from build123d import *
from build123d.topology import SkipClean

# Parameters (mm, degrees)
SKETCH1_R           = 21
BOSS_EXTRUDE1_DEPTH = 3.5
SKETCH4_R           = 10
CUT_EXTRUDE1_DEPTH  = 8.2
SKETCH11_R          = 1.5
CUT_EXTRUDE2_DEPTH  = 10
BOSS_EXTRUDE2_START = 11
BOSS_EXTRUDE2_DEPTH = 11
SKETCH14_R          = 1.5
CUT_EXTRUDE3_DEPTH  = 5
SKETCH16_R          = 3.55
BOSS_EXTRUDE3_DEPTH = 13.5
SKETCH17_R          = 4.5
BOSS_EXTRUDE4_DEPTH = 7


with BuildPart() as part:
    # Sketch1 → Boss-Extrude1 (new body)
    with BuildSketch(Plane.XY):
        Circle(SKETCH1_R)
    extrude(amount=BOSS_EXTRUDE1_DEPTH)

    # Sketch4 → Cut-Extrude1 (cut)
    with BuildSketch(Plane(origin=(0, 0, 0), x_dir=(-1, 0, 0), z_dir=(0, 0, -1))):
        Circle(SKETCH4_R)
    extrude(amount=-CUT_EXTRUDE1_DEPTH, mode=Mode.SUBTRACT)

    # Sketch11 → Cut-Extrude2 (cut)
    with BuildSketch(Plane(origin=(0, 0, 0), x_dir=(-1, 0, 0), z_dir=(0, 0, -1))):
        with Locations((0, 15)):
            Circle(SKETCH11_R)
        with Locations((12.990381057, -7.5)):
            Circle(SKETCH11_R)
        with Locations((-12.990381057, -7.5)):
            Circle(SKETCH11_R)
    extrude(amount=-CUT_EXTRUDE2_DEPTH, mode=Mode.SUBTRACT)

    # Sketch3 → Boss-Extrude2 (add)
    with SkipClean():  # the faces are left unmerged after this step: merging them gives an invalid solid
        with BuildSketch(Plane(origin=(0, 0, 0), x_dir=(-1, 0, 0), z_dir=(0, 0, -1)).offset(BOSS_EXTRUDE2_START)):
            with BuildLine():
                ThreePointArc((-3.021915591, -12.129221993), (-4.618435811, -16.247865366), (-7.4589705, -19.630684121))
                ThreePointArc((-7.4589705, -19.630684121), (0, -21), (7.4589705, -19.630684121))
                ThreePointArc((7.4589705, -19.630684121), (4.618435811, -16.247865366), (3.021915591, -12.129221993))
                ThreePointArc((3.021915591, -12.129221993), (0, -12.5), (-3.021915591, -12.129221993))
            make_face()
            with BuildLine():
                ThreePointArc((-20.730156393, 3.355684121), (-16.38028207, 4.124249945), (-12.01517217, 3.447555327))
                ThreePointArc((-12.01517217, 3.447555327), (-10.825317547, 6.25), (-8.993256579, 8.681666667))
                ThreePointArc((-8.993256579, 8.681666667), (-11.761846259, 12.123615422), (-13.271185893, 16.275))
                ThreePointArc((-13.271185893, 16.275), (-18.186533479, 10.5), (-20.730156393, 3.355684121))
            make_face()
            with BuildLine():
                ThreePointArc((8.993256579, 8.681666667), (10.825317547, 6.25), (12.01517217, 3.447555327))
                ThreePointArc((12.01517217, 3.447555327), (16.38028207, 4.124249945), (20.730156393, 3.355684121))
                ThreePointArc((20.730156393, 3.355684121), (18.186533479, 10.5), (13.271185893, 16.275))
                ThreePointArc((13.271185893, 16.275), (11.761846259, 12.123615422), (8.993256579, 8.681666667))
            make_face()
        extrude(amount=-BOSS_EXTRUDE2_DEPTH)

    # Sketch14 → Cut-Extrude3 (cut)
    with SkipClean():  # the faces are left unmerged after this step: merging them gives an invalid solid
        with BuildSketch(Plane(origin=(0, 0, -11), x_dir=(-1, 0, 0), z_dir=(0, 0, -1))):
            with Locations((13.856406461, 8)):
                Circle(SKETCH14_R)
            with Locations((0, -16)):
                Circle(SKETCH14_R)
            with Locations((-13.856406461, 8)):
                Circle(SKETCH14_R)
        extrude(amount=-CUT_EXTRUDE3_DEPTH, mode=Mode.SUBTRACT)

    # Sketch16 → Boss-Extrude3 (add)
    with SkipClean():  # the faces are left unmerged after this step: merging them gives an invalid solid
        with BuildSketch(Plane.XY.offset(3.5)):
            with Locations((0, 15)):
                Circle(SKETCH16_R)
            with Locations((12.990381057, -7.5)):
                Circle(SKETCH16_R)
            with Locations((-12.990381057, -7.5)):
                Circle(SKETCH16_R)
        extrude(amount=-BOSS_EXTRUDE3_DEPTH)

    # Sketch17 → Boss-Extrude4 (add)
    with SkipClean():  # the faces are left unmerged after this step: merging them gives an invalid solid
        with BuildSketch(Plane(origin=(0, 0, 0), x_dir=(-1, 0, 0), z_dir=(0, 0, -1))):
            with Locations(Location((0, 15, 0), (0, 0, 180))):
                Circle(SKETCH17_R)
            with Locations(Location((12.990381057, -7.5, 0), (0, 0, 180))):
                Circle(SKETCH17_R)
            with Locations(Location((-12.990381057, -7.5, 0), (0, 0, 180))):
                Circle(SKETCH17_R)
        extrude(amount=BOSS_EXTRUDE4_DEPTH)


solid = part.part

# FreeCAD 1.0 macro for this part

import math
import FreeCAD as App
import Part
import Sketcher
from FreeCAD import Vector
Q = App.Units.Quantity

doc = App.newDocument("Part")
body = doc.addObject("PartDesign::Body", "Body")

sketch1 = body.newObject("Sketcher::SketchObject", "Sketch")
sketch1.AttachmentSupport = (doc.getObject("XY_Plane"), [""])
sketch1.MapMode = "FlatFace"
sketch1.addGeometry(Part.Circle(Vector(0, 0, 0), Vector(0, 0, 1), 21), False)
sketch1.addConstraint(Sketcher.Constraint("Coincident", 0, 3, -1, 1))
sketch1.addConstraint(Sketcher.Constraint("Diameter", 0, Q("42 mm")))
pad1 = body.newObject("PartDesign::Pad", "Pad")
pad1.Profile = sketch1
pad1.Length = 3.5

sketch2 = body.newObject("Sketcher::SketchObject", "Sketch001")
sketch2.AttachmentSupport = (doc.getObject("XY_Plane"), [""])
sketch2.MapMode = "FlatFace"
sketch2.addGeometry(Part.Circle(Vector(0, 0, 0), Vector(0, 0, 1), 10), False)
sketch2.addConstraint(Sketcher.Constraint("Coincident", 0, 3, -1, 1))
sketch2.addConstraint(Sketcher.Constraint("Diameter", 0, Q("20 mm")))
pocket1 = body.newObject("PartDesign::Pocket", "Pocket")
pocket1.Profile = sketch2
pocket1.Length = 8.2
pocket1.Reversed = True

sketch3 = body.newObject("Sketcher::SketchObject", "Sketch002")
sketch3.AttachmentSupport = (doc.getObject("XY_Plane"), [""])
sketch3.MapMode = "FlatFace"
sketch3.addGeometry(Part.Circle(Vector(0, 15, 0), Vector(0, 0, 1), 1.5), False)
sketch3.addGeometry(Part.Circle(Vector(-13, -7.5, 0), Vector(0, 0, 1), 1.5), False)
sketch3.addGeometry(Part.Circle(Vector(13, -7.5, 0), Vector(0, 0, 1), 1.5), False)
sketch3.addConstraint(Sketcher.Constraint("Equal", 0, 1))
sketch3.addConstraint(Sketcher.Constraint("Equal", 1, 2))
sketch3.addConstraint(Sketcher.Constraint("Symmetric", 1, 3, 2, 3, -2))
sketch3.addConstraint(Sketcher.Constraint("PointOnObject", 0, 3, -2))
sketch3.addConstraint(Sketcher.Constraint("Diameter", 0, Q("3 mm")))
sketch3.addConstraint(Sketcher.Constraint("DistanceY", -1, 1, 0, 3, Q("15 mm")))
sketch3.addConstraint(Sketcher.Constraint("DistanceY", 1, 3, -1, 1, Q("7.5 mm")))
sketch3.addConstraint(Sketcher.Constraint("DistanceX", 1, 3, -1, 1, Q("12.990381 mm")))
pocket2 = body.newObject("PartDesign::Pocket", "Pocket001")
pocket2.Profile = sketch3
pocket2.Length = 10
pocket2.Reversed = True

sketch4 = body.newObject("Sketcher::SketchObject", "Sketch003")
sketch4.AttachmentSupport = (doc.getObject("XY_Plane"), [""])
sketch4.MapMode = "FlatFace"
sketch4.AttachmentOffset = App.Placement(Vector(0, 0, -11), App.Rotation())
sketch4.addGeometry(Part.ArcOfCircle(Part.Circle(Vector(16, -9, 0), Vector(0, 0, 1), 13), math.radians(-168), math.radians(-131)), False)
sketch4.addGeometry(Part.ArcOfCircle(Part.Circle(Vector(0, 0, 0), Vector(0, 0, 1), 21), math.radians(-111), math.radians(-69)), False)
sketch4.addGeometry(Part.ArcOfCircle(Part.Circle(Vector(-16, -9, 0), Vector(0, 0, 1), 13), math.radians(-49), math.radians(-12)), False)
sketch4.addGeometry(Part.ArcOfCircle(Part.Circle(Vector(0, 0, 0), Vector(0, 0, 1), 12), math.radians(-104), math.radians(-76)), False)
sketch4.addGeometry(Part.ArcOfCircle(Part.Circle(Vector(16, -9, 0), Vector(0, 0, 1), 13), math.radians(71), math.radians(108)), False)
sketch4.addGeometry(Part.ArcOfCircle(Part.Circle(Vector(0, 0, 0), Vector(0, 0, 1), 13), math.radians(16), math.radians(44)), False)
sketch4.addGeometry(Part.ArcOfCircle(Part.Circle(Vector(0, 19, 0), Vector(0, 0, 1), 14), math.radians(-48), math.radians(-11)), False)
sketch4.addGeometry(Part.ArcOfCircle(Part.Circle(Vector(0, 0, 0), Vector(0, 0, 1), 21), math.radians(9), math.radians(51)), False)
sketch4.addGeometry(Part.ArcOfCircle(Part.Circle(Vector(0, 0, 0), Vector(0, 0, 1), 13), math.radians(136), math.radians(164)), False)
sketch4.addGeometry(Part.ArcOfCircle(Part.Circle(Vector(-16, -9, 0), Vector(0, 0, 1), 13), math.radians(72), math.radians(109)), False)
sketch4.addGeometry(Part.ArcOfCircle(Part.Circle(Vector(0, 0, 0), Vector(0, 0, 1), 21), math.radians(129), math.radians(171)), False)
sketch4.addGeometry(Part.ArcOfCircle(Part.Circle(Vector(0, 19, 0), Vector(0, 0, 1), 14), math.radians(-169), math.radians(-132)), False)
sketch4.addConstraint(Sketcher.Constraint("Coincident", 0, 2, 1, 2))
sketch4.addConstraint(Sketcher.Constraint("Coincident", 1, 1, 2, 1))
sketch4.addConstraint(Sketcher.Constraint("Coincident", 2, 2, 3, 1))
sketch4.addConstraint(Sketcher.Constraint("Coincident", 3, 2, 0, 1))
sketch4.addConstraint(Sketcher.Constraint("Coincident", 4, 2, 5, 1))
sketch4.addConstraint(Sketcher.Constraint("Coincident", 5, 2, 6, 1))
sketch4.addConstraint(Sketcher.Constraint("Coincident", 6, 2, 7, 2))
sketch4.addConstraint(Sketcher.Constraint("Coincident", 7, 1, 4, 1))
sketch4.addConstraint(Sketcher.Constraint("Coincident", 8, 2, 9, 1))
sketch4.addConstraint(Sketcher.Constraint("Coincident", 9, 2, 10, 2))
sketch4.addConstraint(Sketcher.Constraint("Coincident", 10, 1, 11, 1))
sketch4.addConstraint(Sketcher.Constraint("Coincident", 11, 2, 8, 1))
sketch4.addConstraint(Sketcher.Constraint("Coincident", 1, 3, -1, 1))
sketch4.addConstraint(Sketcher.Constraint("Coincident", 3, 3, -1, 1))
sketch4.addConstraint(Sketcher.Constraint("Coincident", 5, 3, -1, 1))
sketch4.addConstraint(Sketcher.Constraint("Coincident", 7, 3, -1, 1))
sketch4.addConstraint(Sketcher.Constraint("Coincident", 8, 3, -1, 1))
sketch4.addConstraint(Sketcher.Constraint("Coincident", 10, 3, -1, 1))
sketch4.addConstraint(Sketcher.Constraint("Coincident", 4, 3, 0, 3))
sketch4.addConstraint(Sketcher.Constraint("Coincident", 9, 3, 2, 3))
sketch4.addConstraint(Sketcher.Constraint("Coincident", 11, 3, 6, 3))
sketch4.addConstraint(Sketcher.Constraint("Equal", 0, 2))
sketch4.addConstraint(Sketcher.Constraint("Equal", 2, 4))
sketch4.addConstraint(Sketcher.Constraint("Equal", 3, 5))
sketch4.addConstraint(Sketcher.Constraint("Equal", 4, 6))
sketch4.addConstraint(Sketcher.Constraint("Equal", 1, 7))
sketch4.addConstraint(Sketcher.Constraint("Equal", 5, 8))
sketch4.addConstraint(Sketcher.Constraint("Equal", 6, 9))
sketch4.addConstraint(Sketcher.Constraint("Equal", 7, 10))
sketch4.addConstraint(Sketcher.Constraint("Equal", 9, 11))
sketch4.addConstraint(Sketcher.Constraint("Symmetric", 0, 3, 2, 3, -2))
sketch4.addConstraint(Sketcher.Constraint("PointOnObject", 6, 3, -2))
sketch4.addConstraint(Sketcher.Constraint("Radius", 1, Q("21 mm")))
sketch4.addConstraint(Sketcher.Constraint("Radius", 0, Q("13.5 mm")))
sketch4.addConstraint(Sketcher.Constraint("Radius", 3, Q("12.5 mm")))
sketch4.addConstraint(Sketcher.Constraint("DistanceY", -1, 1, 6, 3, Q("18.75 mm")))
sketch4.addConstraint(Sketcher.Constraint("DistanceY", 0, 3, -1, 1, Q("9.375 mm")))
sketch4.addConstraint(Sketcher.Constraint("DistanceX", 5, 2, 7, 1, Q("11.7369 mm")))
pad2 = body.newObject("PartDesign::Pad", "Pad001")
pad2.Profile = sketch4
pad2.Length = 11

sketch5 = body.newObject("Sketcher::SketchObject", "Sketch004")
sketch5.AttachmentSupport = (doc.getObject("XY_Plane"), [""])
sketch5.MapMode = "FlatFace"
sketch5.AttachmentOffset = App.Placement(Vector(0, 0, -11), App.Rotation())
sketch5.addGeometry(Part.Circle(Vector(-13.9, 8, 0), Vector(0, 0, 1), 1.5), False)
sketch5.addGeometry(Part.Circle(Vector(0, -16, 0), Vector(0, 0, 1), 1.5), False)
sketch5.addGeometry(Part.Circle(Vector(13.9, 8, 0), Vector(0, 0, 1), 1.5), False)
sketch5.addConstraint(Sketcher.Constraint("Equal", 0, 1))
sketch5.addConstraint(Sketcher.Constraint("Equal", 1, 2))
sketch5.addConstraint(Sketcher.Constraint("Symmetric", 0, 3, 2, 3, -2))
sketch5.addConstraint(Sketcher.Constraint("PointOnObject", 1, 3, -2))
sketch5.addConstraint(Sketcher.Constraint("Diameter", 0, Q("3 mm")))
sketch5.addConstraint(Sketcher.Constraint("DistanceY", -1, 1, 0, 3, Q("8 mm")))
sketch5.addConstraint(Sketcher.Constraint("DistanceY", 1, 3, -1, 1, Q("16 mm")))
sketch5.addConstraint(Sketcher.Constraint("DistanceX", 0, 3, -1, 1, Q("13.856406 mm")))
pocket3 = body.newObject("PartDesign::Pocket", "Pocket002")
pocket3.Profile = sketch5
pocket3.Length = 5
pocket3.Reversed = True

sketch6 = body.newObject("Sketcher::SketchObject", "Sketch005")
sketch6.AttachmentSupport = (doc.getObject("XY_Plane"), [""])
sketch6.MapMode = "FlatFace"
sketch6.AttachmentOffset = App.Placement(Vector(0, 0, 3.5), App.Rotation())
sketch6.addGeometry(Part.Circle(Vector(0, 15, 0), Vector(0, 0, 1), 3.5), False)
sketch6.addGeometry(Part.Circle(Vector(13, -7.5, 0), Vector(0, 0, 1), 3.5), False)
sketch6.addGeometry(Part.Circle(Vector(-13, -7.5, 0), Vector(0, 0, 1), 3.5), False)
sketch6.addConstraint(Sketcher.Constraint("Equal", 0, 1))
sketch6.addConstraint(Sketcher.Constraint("Equal", 1, 2))
sketch6.addConstraint(Sketcher.Constraint("Symmetric", 1, 3, 2, 3, -2))
sketch6.addConstraint(Sketcher.Constraint("PointOnObject", 0, 3, -2))
sketch6.addConstraint(Sketcher.Constraint("Diameter", 0, Q("7.1 mm")))
sketch6.addConstraint(Sketcher.Constraint("DistanceY", -1, 1, 0, 3, Q("15 mm")))
sketch6.addConstraint(Sketcher.Constraint("DistanceY", 1, 3, -1, 1, Q("7.5 mm")))
sketch6.addConstraint(Sketcher.Constraint("DistanceX", -1, 1, 1, 3, Q("12.990381 mm")))
pad3 = body.newObject("PartDesign::Pad", "Pad002")
pad3.Profile = sketch6
pad3.Length = 13.5
pad3.Reversed = True

sketch7 = body.newObject("Sketcher::SketchObject", "Sketch006")
sketch7.AttachmentSupport = (doc.getObject("XY_Plane"), [""])
sketch7.MapMode = "FlatFace"
sketch7.addGeometry(Part.Circle(Vector(0, 15, 0), Vector(0, 0, 1), 4.5), False)
sketch7.addGeometry(Part.Circle(Vector(-13, -7.5, 0), Vector(0, 0, 1), 4.5), False)
sketch7.addGeometry(Part.Circle(Vector(13, -7.5, 0), Vector(0, 0, 1), 4.5), False)
sketch7.addConstraint(Sketcher.Constraint("Equal", 0, 1))
sketch7.addConstraint(Sketcher.Constraint("Equal", 1, 2))
sketch7.addConstraint(Sketcher.Constraint("Symmetric", 1, 3, 2, 3, -2))
sketch7.addConstraint(Sketcher.Constraint("PointOnObject", 0, 3, -2))
sketch7.addConstraint(Sketcher.Constraint("Diameter", 0, Q("9 mm")))
sketch7.addConstraint(Sketcher.Constraint("DistanceY", -1, 1, 0, 3, Q("15 mm")))
sketch7.addConstraint(Sketcher.Constraint("DistanceY", 1, 3, -1, 1, Q("7.5 mm")))
sketch7.addConstraint(Sketcher.Constraint("DistanceX", 1, 3, -1, 1, Q("12.990381 mm")))
pad4 = body.newObject("PartDesign::Pad", "Pad003")
pad4.Profile = sketch7
pad4.Length = 7
pad4.Reversed = True

doc.recompute()
